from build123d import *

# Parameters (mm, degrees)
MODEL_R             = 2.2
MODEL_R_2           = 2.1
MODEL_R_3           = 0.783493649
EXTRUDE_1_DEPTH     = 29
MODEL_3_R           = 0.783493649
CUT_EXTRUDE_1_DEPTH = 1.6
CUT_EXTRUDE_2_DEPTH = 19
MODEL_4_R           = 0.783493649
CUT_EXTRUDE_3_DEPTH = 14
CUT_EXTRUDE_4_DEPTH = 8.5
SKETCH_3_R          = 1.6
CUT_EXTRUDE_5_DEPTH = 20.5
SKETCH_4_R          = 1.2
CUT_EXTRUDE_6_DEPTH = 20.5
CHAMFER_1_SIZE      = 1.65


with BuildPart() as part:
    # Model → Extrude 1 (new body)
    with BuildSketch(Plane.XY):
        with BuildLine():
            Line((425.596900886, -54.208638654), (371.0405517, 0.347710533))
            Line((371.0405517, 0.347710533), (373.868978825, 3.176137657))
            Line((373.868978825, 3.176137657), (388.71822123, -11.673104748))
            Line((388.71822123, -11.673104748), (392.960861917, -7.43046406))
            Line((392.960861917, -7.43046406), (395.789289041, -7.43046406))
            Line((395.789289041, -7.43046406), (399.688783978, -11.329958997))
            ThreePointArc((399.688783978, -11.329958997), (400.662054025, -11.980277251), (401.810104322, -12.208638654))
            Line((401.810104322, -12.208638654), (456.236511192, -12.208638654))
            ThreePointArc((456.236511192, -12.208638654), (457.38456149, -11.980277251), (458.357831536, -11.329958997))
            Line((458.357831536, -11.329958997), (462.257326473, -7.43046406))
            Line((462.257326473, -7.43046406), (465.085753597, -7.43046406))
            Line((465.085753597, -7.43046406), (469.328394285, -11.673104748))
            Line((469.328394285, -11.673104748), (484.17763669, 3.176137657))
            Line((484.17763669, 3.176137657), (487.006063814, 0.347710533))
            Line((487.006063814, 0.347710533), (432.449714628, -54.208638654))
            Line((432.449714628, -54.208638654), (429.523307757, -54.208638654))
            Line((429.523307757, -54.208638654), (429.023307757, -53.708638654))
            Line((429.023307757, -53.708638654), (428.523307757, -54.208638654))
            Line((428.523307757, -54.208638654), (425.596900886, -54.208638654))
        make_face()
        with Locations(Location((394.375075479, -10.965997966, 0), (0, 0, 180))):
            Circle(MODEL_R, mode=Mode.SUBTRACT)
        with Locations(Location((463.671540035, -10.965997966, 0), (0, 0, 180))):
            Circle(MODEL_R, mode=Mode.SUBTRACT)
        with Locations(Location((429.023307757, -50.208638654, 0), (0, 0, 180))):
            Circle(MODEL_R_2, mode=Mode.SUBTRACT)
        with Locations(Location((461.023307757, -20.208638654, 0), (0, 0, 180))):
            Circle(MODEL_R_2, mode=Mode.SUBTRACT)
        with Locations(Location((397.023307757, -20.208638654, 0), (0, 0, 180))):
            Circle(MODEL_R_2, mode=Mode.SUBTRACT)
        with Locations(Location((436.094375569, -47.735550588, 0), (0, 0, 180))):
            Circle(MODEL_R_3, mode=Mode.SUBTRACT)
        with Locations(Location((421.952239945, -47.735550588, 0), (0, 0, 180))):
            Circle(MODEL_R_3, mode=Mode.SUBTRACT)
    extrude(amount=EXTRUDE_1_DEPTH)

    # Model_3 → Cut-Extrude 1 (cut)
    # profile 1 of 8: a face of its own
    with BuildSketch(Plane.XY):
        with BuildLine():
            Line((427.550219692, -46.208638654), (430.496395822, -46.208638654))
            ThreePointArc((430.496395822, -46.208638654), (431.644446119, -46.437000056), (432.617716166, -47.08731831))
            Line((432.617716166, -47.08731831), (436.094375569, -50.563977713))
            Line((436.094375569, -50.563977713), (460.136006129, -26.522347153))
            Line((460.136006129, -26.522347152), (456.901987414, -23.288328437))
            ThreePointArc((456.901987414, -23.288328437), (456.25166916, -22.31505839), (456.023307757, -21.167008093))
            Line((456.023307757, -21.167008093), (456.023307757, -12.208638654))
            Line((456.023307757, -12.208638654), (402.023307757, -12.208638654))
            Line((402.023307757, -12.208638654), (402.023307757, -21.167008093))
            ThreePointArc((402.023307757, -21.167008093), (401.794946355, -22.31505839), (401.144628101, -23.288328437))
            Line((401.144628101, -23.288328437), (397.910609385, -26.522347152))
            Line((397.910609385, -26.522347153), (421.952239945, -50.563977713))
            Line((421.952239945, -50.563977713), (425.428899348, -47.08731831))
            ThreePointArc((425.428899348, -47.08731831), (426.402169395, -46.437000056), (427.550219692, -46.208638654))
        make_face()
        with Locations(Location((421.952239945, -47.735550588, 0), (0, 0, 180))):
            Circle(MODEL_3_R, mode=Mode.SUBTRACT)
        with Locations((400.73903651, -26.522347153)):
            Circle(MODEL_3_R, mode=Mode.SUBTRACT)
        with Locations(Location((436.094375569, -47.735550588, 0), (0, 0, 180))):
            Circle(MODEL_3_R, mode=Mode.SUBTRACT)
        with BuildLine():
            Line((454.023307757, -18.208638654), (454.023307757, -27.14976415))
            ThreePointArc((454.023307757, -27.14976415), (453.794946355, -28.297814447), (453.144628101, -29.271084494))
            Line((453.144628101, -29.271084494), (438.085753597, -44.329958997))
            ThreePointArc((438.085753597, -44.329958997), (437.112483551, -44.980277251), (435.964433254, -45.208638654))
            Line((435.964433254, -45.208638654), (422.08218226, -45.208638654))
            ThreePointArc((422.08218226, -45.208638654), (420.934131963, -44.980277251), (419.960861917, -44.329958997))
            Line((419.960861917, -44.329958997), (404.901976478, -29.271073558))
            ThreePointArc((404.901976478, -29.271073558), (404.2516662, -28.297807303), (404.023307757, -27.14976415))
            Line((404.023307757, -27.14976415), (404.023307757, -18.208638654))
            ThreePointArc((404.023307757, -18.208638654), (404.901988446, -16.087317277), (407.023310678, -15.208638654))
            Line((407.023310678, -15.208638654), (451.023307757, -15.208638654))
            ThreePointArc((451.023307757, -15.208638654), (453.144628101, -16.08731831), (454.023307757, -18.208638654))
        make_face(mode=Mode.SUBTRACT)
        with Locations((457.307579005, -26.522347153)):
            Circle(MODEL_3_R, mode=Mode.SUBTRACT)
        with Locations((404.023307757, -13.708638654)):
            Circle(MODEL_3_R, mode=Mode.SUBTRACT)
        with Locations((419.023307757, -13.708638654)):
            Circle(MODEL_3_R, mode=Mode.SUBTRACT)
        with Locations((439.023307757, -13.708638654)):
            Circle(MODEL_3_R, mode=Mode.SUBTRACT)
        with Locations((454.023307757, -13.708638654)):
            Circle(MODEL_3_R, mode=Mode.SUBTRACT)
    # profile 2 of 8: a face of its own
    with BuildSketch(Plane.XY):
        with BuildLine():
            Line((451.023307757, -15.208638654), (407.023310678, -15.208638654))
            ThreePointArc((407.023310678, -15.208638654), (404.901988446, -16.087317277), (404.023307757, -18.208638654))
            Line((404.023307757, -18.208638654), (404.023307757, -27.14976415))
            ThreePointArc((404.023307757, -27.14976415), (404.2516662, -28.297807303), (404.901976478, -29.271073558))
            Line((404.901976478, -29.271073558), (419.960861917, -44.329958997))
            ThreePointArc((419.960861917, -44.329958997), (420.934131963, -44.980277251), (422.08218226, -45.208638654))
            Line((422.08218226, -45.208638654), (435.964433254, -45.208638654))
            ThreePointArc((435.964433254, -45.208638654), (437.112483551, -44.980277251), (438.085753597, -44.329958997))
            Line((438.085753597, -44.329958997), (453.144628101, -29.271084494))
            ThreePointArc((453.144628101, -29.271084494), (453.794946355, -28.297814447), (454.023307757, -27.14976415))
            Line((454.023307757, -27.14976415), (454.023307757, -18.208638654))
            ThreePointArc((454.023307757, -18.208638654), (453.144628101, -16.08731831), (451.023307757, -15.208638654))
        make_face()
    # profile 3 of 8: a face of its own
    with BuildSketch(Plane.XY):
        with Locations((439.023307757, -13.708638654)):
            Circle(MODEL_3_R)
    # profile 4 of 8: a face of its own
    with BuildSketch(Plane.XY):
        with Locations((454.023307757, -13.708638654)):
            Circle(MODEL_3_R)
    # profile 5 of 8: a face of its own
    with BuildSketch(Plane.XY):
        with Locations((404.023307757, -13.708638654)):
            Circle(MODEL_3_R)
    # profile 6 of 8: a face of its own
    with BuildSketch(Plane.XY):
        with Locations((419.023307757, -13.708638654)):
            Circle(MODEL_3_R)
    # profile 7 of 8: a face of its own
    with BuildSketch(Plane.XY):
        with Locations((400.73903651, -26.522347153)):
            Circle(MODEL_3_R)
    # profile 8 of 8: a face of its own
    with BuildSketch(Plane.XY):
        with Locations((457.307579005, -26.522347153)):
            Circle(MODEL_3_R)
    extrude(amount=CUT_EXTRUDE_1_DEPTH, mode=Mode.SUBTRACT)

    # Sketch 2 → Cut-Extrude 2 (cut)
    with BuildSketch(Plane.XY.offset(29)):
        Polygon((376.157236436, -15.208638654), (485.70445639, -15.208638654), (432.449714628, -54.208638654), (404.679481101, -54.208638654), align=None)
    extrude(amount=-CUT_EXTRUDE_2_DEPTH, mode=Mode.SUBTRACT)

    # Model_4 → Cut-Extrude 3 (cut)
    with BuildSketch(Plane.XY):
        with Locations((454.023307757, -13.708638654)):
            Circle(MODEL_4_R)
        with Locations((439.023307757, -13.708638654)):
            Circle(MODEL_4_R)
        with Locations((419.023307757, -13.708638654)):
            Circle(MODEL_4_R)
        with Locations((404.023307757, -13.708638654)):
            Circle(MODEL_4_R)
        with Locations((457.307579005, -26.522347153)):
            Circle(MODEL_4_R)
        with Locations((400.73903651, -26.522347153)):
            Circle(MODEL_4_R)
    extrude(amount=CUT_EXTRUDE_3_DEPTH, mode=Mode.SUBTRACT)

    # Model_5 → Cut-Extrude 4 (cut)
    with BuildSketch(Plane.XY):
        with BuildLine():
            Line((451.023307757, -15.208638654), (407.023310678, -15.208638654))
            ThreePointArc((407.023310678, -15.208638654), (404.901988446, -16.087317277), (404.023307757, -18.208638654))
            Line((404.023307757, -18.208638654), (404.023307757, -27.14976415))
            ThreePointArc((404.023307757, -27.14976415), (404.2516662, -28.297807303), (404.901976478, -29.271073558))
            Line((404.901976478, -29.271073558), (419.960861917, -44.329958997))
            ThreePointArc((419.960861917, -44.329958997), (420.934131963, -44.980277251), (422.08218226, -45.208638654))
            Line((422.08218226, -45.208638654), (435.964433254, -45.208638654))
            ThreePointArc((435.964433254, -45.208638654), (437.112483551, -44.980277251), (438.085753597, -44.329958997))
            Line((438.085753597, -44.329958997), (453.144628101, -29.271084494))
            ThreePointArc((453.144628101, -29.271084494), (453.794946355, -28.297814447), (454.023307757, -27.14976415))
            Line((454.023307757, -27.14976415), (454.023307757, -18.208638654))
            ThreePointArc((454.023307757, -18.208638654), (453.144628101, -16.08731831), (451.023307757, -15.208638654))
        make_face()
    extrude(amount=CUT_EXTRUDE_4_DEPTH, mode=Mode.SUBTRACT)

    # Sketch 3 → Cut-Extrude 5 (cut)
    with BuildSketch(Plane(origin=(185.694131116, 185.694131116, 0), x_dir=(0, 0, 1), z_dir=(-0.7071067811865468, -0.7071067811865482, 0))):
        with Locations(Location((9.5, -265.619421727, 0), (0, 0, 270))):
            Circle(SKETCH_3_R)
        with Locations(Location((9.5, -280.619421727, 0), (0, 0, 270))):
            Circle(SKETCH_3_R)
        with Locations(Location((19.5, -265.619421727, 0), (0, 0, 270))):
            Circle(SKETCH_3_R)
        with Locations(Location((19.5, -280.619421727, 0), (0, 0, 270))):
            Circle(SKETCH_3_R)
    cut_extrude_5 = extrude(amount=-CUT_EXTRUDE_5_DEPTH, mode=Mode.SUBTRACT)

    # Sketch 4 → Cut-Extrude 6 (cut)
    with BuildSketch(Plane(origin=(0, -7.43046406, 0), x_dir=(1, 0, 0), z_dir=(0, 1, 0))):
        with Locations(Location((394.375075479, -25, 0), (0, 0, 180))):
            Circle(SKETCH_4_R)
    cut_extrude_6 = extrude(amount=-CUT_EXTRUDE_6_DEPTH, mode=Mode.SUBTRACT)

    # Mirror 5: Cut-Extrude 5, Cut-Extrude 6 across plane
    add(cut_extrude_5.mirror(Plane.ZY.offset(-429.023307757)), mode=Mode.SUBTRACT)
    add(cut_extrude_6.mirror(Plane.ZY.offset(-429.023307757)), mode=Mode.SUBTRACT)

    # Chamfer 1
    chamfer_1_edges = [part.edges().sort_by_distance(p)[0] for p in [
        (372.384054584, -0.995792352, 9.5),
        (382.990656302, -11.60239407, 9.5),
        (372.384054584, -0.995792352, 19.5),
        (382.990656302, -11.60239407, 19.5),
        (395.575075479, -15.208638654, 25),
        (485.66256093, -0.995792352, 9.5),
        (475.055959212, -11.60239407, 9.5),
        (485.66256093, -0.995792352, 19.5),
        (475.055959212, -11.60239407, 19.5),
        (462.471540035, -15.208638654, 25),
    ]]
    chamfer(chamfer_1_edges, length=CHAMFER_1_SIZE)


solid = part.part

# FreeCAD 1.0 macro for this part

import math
import FreeCAD as App
import Part
import Sketcher
from FreeCAD import Vector


def edges_at(feature, points):
    """Names of the edges that pass closest to the given points."""
    edges = feature.Shape.Edges
    near = lambda p: min(range(len(edges)), key=lambda i: edges[i].distToShape(Part.Vertex(*p))[0])
    return sorted({f"Edge{near(p) + 1}" for p in points})


def add_polygon(sketch, points):
    """Adds a closed chain of lines whose ends are joined by coincident constraints."""
    first, n = sketch.GeometryCount, len(points)
    for a, b in zip(points, points[1:] + points[:1]):
        sketch.addGeometry(Part.LineSegment(App.Vector(*a, 0), App.Vector(*b, 0)), False)
    for i in range(n):
        sketch.addConstraint(Sketcher.Constraint("Coincident", first + i, 2, first + (i + 1) % n, 1))

doc = App.newDocument("Part")
body = doc.addObject("PartDesign::Body", "Body")

# Sketch on XY plane
sketch1 = body.newObject("Sketcher::SketchObject", "Sketch")
sketch1.AttachmentSupport = (doc.getObject("XY_Plane"), [""])
sketch1.MapMode = "FlatFace"
sketch1.addGeometry([
    Part.LineSegment(Vector(371, 0.3, 0), Vector(425.6, -54.2, 0)),  # 0
    Part.LineSegment(Vector(425.6, -54.2, 0), Vector(428.5, -54.2, 0)),  # 1
    Part.LineSegment(Vector(428.5, -54.2, 0), Vector(429, -53.7, 0)),  # 2
    Part.LineSegment(Vector(429, -53.7, 0), Vector(429.5, -54.2, 0)),  # 3
    Part.LineSegment(Vector(429.5, -54.2, 0), Vector(432.4, -54.2, 0)),  # 4
    Part.LineSegment(Vector(432.4, -54.2, 0), Vector(487, 0.3, 0)),  # 5
    Part.LineSegment(Vector(487, 0.3, 0), Vector(484.2, 3.2, 0)),  # 6
    Part.LineSegment(Vector(484.2, 3.2, 0), Vector(469.3, -11.7, 0)),  # 7
    Part.LineSegment(Vector(469.3, -11.7, 0), Vector(465.1, -7.4, 0)),  # 8
    Part.LineSegment(Vector(465.1, -7.4, 0), Vector(462.3, -7.4, 0)),  # 9
    Part.LineSegment(Vector(462.3, -7.4, 0), Vector(458.4, -11.3, 0)),  # 10
    Part.ArcOfCircle(Part.Circle(Vector(456.2, -9.2, 0), Vector(0, 0, 1), 3), math.radians(-90), math.radians(-45)),  # 11
    Part.LineSegment(Vector(456.2, -12.2, 0), Vector(401.8, -12.2, 0)),  # 12
    Part.ArcOfCircle(Part.Circle(Vector(401.8, -9.2, 0), Vector(0, 0, 1), 3), math.radians(-135), math.radians(-90)),  # 13
    Part.LineSegment(Vector(399.7, -11.3, 0), Vector(395.8, -7.4, 0)),  # 14
    Part.LineSegment(Vector(395.8, -7.4, 0), Vector(393, -7.4, 0)),  # 15
    Part.LineSegment(Vector(393, -7.4, 0), Vector(388.7, -11.7, 0)),  # 16
    Part.LineSegment(Vector(388.7, -11.7, 0), Vector(373.9, 3.2, 0)),  # 17
    Part.LineSegment(Vector(373.9, 3.2, 0), Vector(371, 0.3, 0)),  # 18
    Part.Circle(Vector(436.1, -47.7, 0), Vector(0, 0, 1), 0.8),  # 19
    Part.Circle(Vector(429, -50.2, 0), Vector(0, 0, 1), 2.1),  # 20
    Part.Circle(Vector(422, -47.7, 0), Vector(0, 0, 1), 0.8),  # 21
    Part.Circle(Vector(461, -20.2, 0), Vector(0, 0, 1), 2.1),  # 22
    Part.Circle(Vector(463.7, -11, 0), Vector(0, 0, 1), 2.2),  # 23
    Part.Circle(Vector(397, -20.2, 0), Vector(0, 0, 1), 2.1),  # 24
    Part.Circle(Vector(394.4, -11, 0), Vector(0, 0, 1), 2.2),  # 25
], False)
sketch1.addConstraint([
    Sketcher.Constraint("Coincident", 0, 2, 1, 1),
    Sketcher.Constraint("Coincident", 1, 2, 2, 1),
    Sketcher.Constraint("Coincident", 2, 2, 3, 1),
    Sketcher.Constraint("Coincident", 3, 2, 4, 1),
    Sketcher.Constraint("Coincident", 4, 2, 5, 1),
    Sketcher.Constraint("Coincident", 5, 2, 6, 1),
    Sketcher.Constraint("Coincident", 6, 2, 7, 1),
    Sketcher.Constraint("Coincident", 7, 2, 8, 1),
    Sketcher.Constraint("Coincident", 8, 2, 9, 1),
    Sketcher.Constraint("Coincident", 9, 2, 10, 1),
    Sketcher.Constraint("Tangent", 10, 2, 11, 2),
    Sketcher.Constraint("Tangent", 11, 1, 12, 1),
    Sketcher.Constraint("Tangent", 12, 2, 13, 2),
    Sketcher.Constraint("Tangent", 13, 1, 14, 1),
    Sketcher.Constraint("Coincident", 14, 2, 15, 1),
    Sketcher.Constraint("Coincident", 15, 2, 16, 1),
    Sketcher.Constraint("Coincident", 16, 2, 17, 1),
    Sketcher.Constraint("Coincident", 17, 2, 18, 1),
    Sketcher.Constraint("Coincident", 18, 2, 0, 1),
    Sketcher.Constraint("Horizontal", 1),
    Sketcher.Constraint("Horizontal", 4),
    Sketcher.Constraint("Horizontal", 9),
    Sketcher.Constraint("Horizontal", 12),
    Sketcher.Constraint("Horizontal", 15),
    Sketcher.Constraint("Equal", 11, 13),
    Sketcher.Constraint("Equal", 19, 21),
    Sketcher.Constraint("Equal", 20, 22),
    Sketcher.Constraint("Equal", 22, 24),
    Sketcher.Constraint("Equal", 23, 25),
    Sketcher.Constraint("Perpendicular", 0, 2),
    Sketcher.Constraint("Perpendicular", 2, 3),
    Sketcher.Constraint("Perpendicular", 3, 5),
    Sketcher.Constraint("Perpendicular", 5, 6),
    Sketcher.Constraint("Perpendicular", 6, 7),
    Sketcher.Constraint("Perpendicular", 7, 8),
    Sketcher.Constraint("Perpendicular", 8, 10),
    Sketcher.Constraint("Perpendicular", 10, 14),
    Sketcher.Constraint("Perpendicular", 14, 16),
    Sketcher.Constraint("Perpendicular", 16, 17),
    Sketcher.Constraint("Perpendicular", 17, 18),
    Sketcher.Constraint("Horizontal", 19, 3, 21, 3),
    Sketcher.Constraint("Horizontal", 22, 3, 24, 3),
    Sketcher.Constraint("Horizontal", 23, 3, 25, 3),
    Sketcher.Constraint("Horizontal", 1, 2, 3, 2),
    Sketcher.Constraint("Horizontal", 10, 2, 13, 1),
    Sketcher.Constraint("Horizontal", 9, 2, 14, 2),
    Sketcher.Constraint("Horizontal", 7, 2, 16, 2),
    Sketcher.Constraint("Horizontal", 6, 2, 17, 2),
    Sketcher.Constraint("Horizontal", 5, 2, 18, 2),
    Sketcher.Constraint("Vertical", 20, 3, 2, 2),
    Sketcher.Constraint("Equal", 1, 4),
    Sketcher.Constraint("Equal", 9, 15),
    Sketcher.Constraint("Radius", 11, 3.0),
    Sketcher.Constraint("Diameter", 20, 4.2),
    Sketcher.Constraint("Diameter", 23, 4.4),
    Sketcher.Constraint("Distance", 6, 4.0),
    Sketcher.Constraint("Distance", 7, 21.0),
    Sketcher.Constraint("Distance", 8, 6.0),
    Sketcher.Constraint("DistanceY", 20, 3, 11, 3, 41.0),
    Sketcher.Constraint("DistanceY", 22, 3, 11, 3, 11.0),
    Sketcher.Constraint("DistanceX", 20, 3, 22, 3, 32.0),
    Sketcher.Constraint("DistanceX", 24, 3, 20, 3, 32.0),
    Sketcher.Constraint("DistanceY", 0, 2, 20, 3, 4.0),
    Sketcher.Constraint("DistanceX", 1, 2, 3, 2, 1.0),
    Sketcher.Constraint("Diameter", 19, 1.566987),
    Sketcher.Constraint("DistanceX", -1, 1, 0, 2, 425.596901),
    Sketcher.Constraint("DistanceX", 21, 3, 23, 3, 41.7193),
    Sketcher.Constraint("DistanceX", 25, 3, 19, 3, 41.7193),
    Sketcher.Constraint("Distance", 0, 77.154329),
    Sketcher.Constraint("DistanceX", 1, 1, 1, 2, 2.926407),
    Sketcher.Constraint("DistanceX", 9, 2, 9, 1, 2.828427),
    Sketcher.Constraint("DistanceY", 11, 3, -1, 1, 9.208639),
    Sketcher.Constraint("DistanceY", 19, 3, -1, 1, 47.735551),
    Sketcher.Constraint("DistanceX", -1, 1, 21, 3, 421.95224),
    Sketcher.Constraint("DistanceX", 13, 3, 19, 3, 34.284271),
    Sketcher.Constraint("DistanceY", 23, 3, 11, 3, 1.757359),
])
pad1 = body.newObject("PartDesign::Pad", "Pad")
pad1.Profile = sketch1
pad1.Length = 29

# Sketch on XY plane
sketch2 = body.newObject("Sketcher::SketchObject", "Sketch001")
sketch2.AttachmentSupport = (doc.getObject("XY_Plane"), [""])
sketch2.MapMode = "FlatFace"
sketch2.addGeometry([
    Part.LineSegment(Vector(427.6, -46.2, 0), Vector(430.5, -46.2, 0)),  # 0
    Part.ArcOfCircle(Part.Circle(Vector(430.5, -49.2, 0), Vector(0, 0, 1), 3), math.radians(45), math.radians(90)),  # 1
    Part.LineSegment(Vector(432.6, -47.1, 0), Vector(436.1, -50.6, 0)),  # 2
    Part.LineSegment(Vector(436.1, -50.6, 0), Vector(460.1, -26.5, 0)),  # 3
    Part.LineSegment(Vector(460.1, -26.5, 0), Vector(456.9, -23.3, 0)),  # 4
    Part.ArcOfCircle(Part.Circle(Vector(459, -21.2, 0), Vector(0, 0, 1), 3), math.radians(-180), math.radians(-135)),  # 5
    Part.LineSegment(Vector(456, -21.2, 0), Vector(456, -12.2, 0)),  # 6
    Part.LineSegment(Vector(456, -12.2, 0), Vector(402, -12.2, 0)),  # 7
    Part.LineSegment(Vector(402, -12.2, 0), Vector(402, -21.2, 0)),  # 8
    Part.ArcOfCircle(Part.Circle(Vector(399, -21.2, 0), Vector(0, 0, 1), 3), math.radians(-45), math.radians(0)),  # 9
    Part.LineSegment(Vector(401.1, -23.3, 0), Vector(397.9, -26.5, 0)),  # 10
    Part.LineSegment(Vector(397.9, -26.5, 0), Vector(422, -50.6, 0)),  # 11
    Part.LineSegment(Vector(422, -50.6, 0), Vector(425.4, -47.1, 0)),  # 12
    Part.ArcOfCircle(Part.Circle(Vector(427.6, -49.2, 0), Vector(0, 0, 1), 3), math.radians(90), math.radians(135)),  # 13
    Part.Circle(Vector(422, -47.7, 0), Vector(0, 0, 1), 0.8),  # 14
    Part.Circle(Vector(436.1, -47.7, 0), Vector(0, 0, 1), 0.8),  # 15
], False)
sketch2.addConstraint([
    Sketcher.Constraint("Tangent", 0, 2, 1, 2),
    Sketcher.Constraint("Tangent", 1, 1, 2, 1),
    Sketcher.Constraint("Coincident", 2, 2, 3, 1),
    Sketcher.Constraint("Coincident", 3, 2, 4, 1),
    Sketcher.Constraint("Tangent", 4, 2, 5, 2),
    Sketcher.Constraint("Tangent", 5, 1, 6, 1),
    Sketcher.Constraint("Coincident", 6, 2, 7, 1),
    Sketcher.Constraint("Coincident", 7, 2, 8, 1),
    Sketcher.Constraint("Tangent", 8, 2, 9, 2),
    Sketcher.Constraint("Tangent", 9, 1, 10, 1),
    Sketcher.Constraint("Coincident", 10, 2, 11, 1),
    Sketcher.Constraint("Coincident", 11, 2, 12, 1),
    Sketcher.Constraint("Tangent", 12, 2, 13, 2),
    Sketcher.Constraint("Tangent", 13, 1, 0, 1),
    Sketcher.Constraint("Horizontal", 0),
    Sketcher.Constraint("Vertical", 6),
    Sketcher.Constraint("Horizontal", 7),
    Sketcher.Constraint("Vertical", 8),
    Sketcher.Constraint("Equal", 1, 5),
    Sketcher.Constraint("Equal", 5, 9),
    Sketcher.Constraint("Equal", 9, 13),
    Sketcher.Constraint("Equal", 14, 15),
    Sketcher.Constraint("Perpendicular", 2, 3),
    Sketcher.Constraint("Perpendicular", 3, 4),
    Sketcher.Constraint("Perpendicular", 4, 10),
    Sketcher.Constraint("Perpendicular", 10, 11),
    Sketcher.Constraint("Perpendicular", 11, 12),
    Sketcher.Constraint("Horizontal", 5, 3, 9, 3),
    Sketcher.Constraint("Horizontal", 14, 3, 15, 3),
    Sketcher.Constraint("Horizontal", 4, 2, 9, 1),
    Sketcher.Constraint("Horizontal", 3, 2, 10, 2),
    Sketcher.Constraint("Horizontal", 2, 2, 11, 2),
    Sketcher.Constraint("Vertical", 15, 3, 2, 2),
    Sketcher.Constraint("Vertical", 14, 3, 11, 2),
    Sketcher.Constraint("Radius", 1, 3.0),
    Sketcher.Constraint("DistanceX", 7, 2, 7, 1, 54.0),
    Sketcher.Constraint("Distance", 3, 34.0),
    Sketcher.Constraint("DistanceY", 0, 2, 7, 2, 34.0),
    Sketcher.Constraint("Diameter", 14, 1.566987),
    Sketcher.Constraint("DistanceY", 6, 1, 6, 2, 8.958369),
    Sketcher.Constraint("DistanceX", -1, 1, 12, 2, 425.428899),
    Sketcher.Constraint("DistanceX", 5, 3, 3, 2, 1.112698),
    Sketcher.Constraint("DistanceY", 1, 3, -1, 1, 49.208639),
    Sketcher.Constraint("DistanceY", 14, 3, -1, 1, 47.735551),
])
pocket1 = body.newObject("PartDesign::Pocket", "Pocket")
pocket1.Profile = sketch2
pocket1.Length = 1.6
pocket1.Reversed = True

# Sketch on XY plane
sketch3 = body.newObject("Sketcher::SketchObject", "Sketch002")
sketch3.AttachmentSupport = (doc.getObject("XY_Plane"), [""])
sketch3.MapMode = "FlatFace"
sketch3.AttachmentOffset = App.Placement(Vector(0, 0, 29), App.Rotation())
add_polygon(sketch3, [(486, -15), (376, -15), (405, -54), (432, -54)])  # lines 0-3
sketch3.addConstraint([
    Sketcher.Constraint("Horizontal", 0),
    Sketcher.Constraint("Horizontal", 2),
    Sketcher.Constraint("DistanceY", 1, 2, 0, 2, 39.0),
    Sketcher.Constraint("DistanceX", 0, 2, 0, 1, 109.54722),
    Sketcher.Constraint("DistanceX", 2, 1, 2, 2, 27.770234),
    Sketcher.Constraint("DistanceY", 0, 2, -1, 1, 15.208639),
    Sketcher.Constraint("DistanceX", -1, 1, 1, 2, 404.679481),
    Sketcher.Constraint("DistanceX", 0, 2, 2, 2, 56.292478),
])
pocket2 = body.newObject("PartDesign::Pocket", "Pocket001")
pocket2.Profile = sketch3
pocket2.Length = 19

# Sketch on XY plane
sketch4 = body.newObject("Sketcher::SketchObject", "Sketch003")
sketch4.AttachmentSupport = (doc.getObject("XY_Plane"), [""])
sketch4.MapMode = "FlatFace"
sketch4.addGeometry([
    Part.Circle(Vector(454, -13.7, 0), Vector(0, 0, 1), 0.8),  # 0
    Part.Circle(Vector(439, -13.7, 0), Vector(0, 0, 1), 0.8),  # 1
    Part.Circle(Vector(419, -13.7, 0), Vector(0, 0, 1), 0.8),  # 2
    Part.Circle(Vector(404, -13.7, 0), Vector(0, 0, 1), 0.8),  # 3
    Part.Circle(Vector(457.3, -26.5, 0), Vector(0, 0, 1), 0.8),  # 4
    Part.Circle(Vector(400.7, -26.5, 0), Vector(0, 0, 1), 0.8),  # 5
], False)
sketch4.addConstraint([
    Sketcher.Constraint("Equal", 0, 1),
    Sketcher.Constraint("Equal", 1, 2),
    Sketcher.Constraint("Equal", 2, 3),
    Sketcher.Constraint("Equal", 3, 4),
    Sketcher.Constraint("Equal", 4, 5),
    Sketcher.Constraint("Horizontal", 0, 3, 1, 3),
    Sketcher.Constraint("Horizontal", 1, 3, 2, 3),
    Sketcher.Constraint("Horizontal", 2, 3, 3, 3),
    Sketcher.Constraint("Horizontal", 4, 3, 5, 3),
    Sketcher.Constraint("DistanceX", 1, 3, 0, 3, 15.0),
    Sketcher.Constraint("DistanceX", 2, 3, 1, 3, 20.0),
    Sketcher.Constraint("DistanceX", 3, 3, 2, 3, 15.0),
    Sketcher.Constraint("Diameter", 0, 1.566987),
    Sketcher.Constraint("DistanceY", 0, 3, -1, 1, 13.708639),
    Sketcher.Constraint("DistanceX", -1, 1, 4, 3, 457.307579),
    Sketcher.Constraint("DistanceX", 0, 3, 4, 3, 3.284271),
    Sketcher.Constraint("DistanceY", 4, 3, 0, 3, 12.813708),
    Sketcher.Constraint("DistanceX", 5, 3, 3, 3, 3.284271),
])
pocket3 = body.newObject("PartDesign::Pocket", "Pocket002")
pocket3.Profile = sketch4
pocket3.Length = 14
pocket3.Reversed = True

# Sketch on XY plane
sketch5 = body.newObject("Sketcher::SketchObject", "Sketch004")
sketch5.AttachmentSupport = (doc.getObject("XY_Plane"), [""])
sketch5.MapMode = "FlatFace"
sketch5.addGeometry([
    Part.LineSegment(Vector(451, -15.2, 0), Vector(407, -15.2, 0)),  # 0
    Part.ArcOfCircle(Part.Circle(Vector(407, -18.2, 0), Vector(0, 0, 1), 3), math.radians(90), math.radians(180)),  # 1
    Part.LineSegment(Vector(404, -18.2, 0), Vector(404, -27.1, 0)),  # 2
    Part.ArcOfCircle(Part.Circle(Vector(407, -27.1, 0), Vector(0, 0, 1), 3), math.radians(180), math.radians(225)),  # 3
    Part.LineSegment(Vector(404.9, -29.3, 0), Vector(420, -44.3, 0)),  # 4
    Part.ArcOfCircle(Part.Circle(Vector(422.1, -42.2, 0), Vector(0, 0, 1), 3), math.radians(-135), math.radians(-90)),  # 5
    Part.LineSegment(Vector(422.1, -45.2, 0), Vector(436, -45.2, 0)),  # 6
    Part.ArcOfCircle(Part.Circle(Vector(436, -42.2, 0), Vector(0, 0, 1), 3), math.radians(-90), math.radians(-45)),  # 7
    Part.LineSegment(Vector(438.1, -44.3, 0), Vector(453.1, -29.3, 0)),  # 8
    Part.ArcOfCircle(Part.Circle(Vector(451, -27.1, 0), Vector(0, 0, 1), 3), math.radians(-45), math.radians(0)),  # 9
    Part.LineSegment(Vector(454, -27.1, 0), Vector(454, -18.2, 0)),  # 10
    Part.ArcOfCircle(Part.Circle(Vector(451, -18.2, 0), Vector(0, 0, 1), 3), math.radians(0), math.radians(90)),  # 11
], False)
sketch5.addConstraint([
    Sketcher.Constraint("Tangent", 0, 2, 1, 1),
    Sketcher.Constraint("Tangent", 1, 2, 2, 1),
    Sketcher.Constraint("Tangent", 2, 2, 3, 1),
    Sketcher.Constraint("Coincident", 3, 2, 4, 1),
    Sketcher.Constraint("Tangent", 4, 2, 5, 1),
    Sketcher.Constraint("Tangent", 5, 2, 6, 1),
    Sketcher.Constraint("Tangent", 6, 2, 7, 1),
    Sketcher.Constraint("Tangent", 7, 2, 8, 1),
    Sketcher.Constraint("Tangent", 8, 2, 9, 1),
    Sketcher.Constraint("Tangent", 9, 2, 10, 1),
    Sketcher.Constraint("Tangent", 10, 2, 11, 1),
    Sketcher.Constraint("Tangent", 11, 2, 0, 1),
    Sketcher.Constraint("Horizontal", 0),
    Sketcher.Constraint("Vertical", 2),
    Sketcher.Constraint("Horizontal", 6),
    Sketcher.Constraint("Vertical", 10),
    Sketcher.Constraint("Equal", 1, 3),
    Sketcher.Constraint("Equal", 3, 5),
    Sketcher.Constraint("Equal", 5, 7),
    Sketcher.Constraint("Equal", 7, 9),
    Sketcher.Constraint("Equal", 9, 11),
    Sketcher.Constraint("Perpendicular", 4, 8),
    Sketcher.Constraint("Horizontal", 3, 3, 9, 3),
    Sketcher.Constraint("Horizontal", 4, 2, 7, 2),
    Sketcher.Constraint("Radius", 1, 3.0),
    Sketcher.Constraint("DistanceY", 5, 3, 1, 3, 24.0),
    Sketcher.Constraint("DistanceX", 3, 3, 9, 3, 44.0),
    Sketcher.Constraint("DistanceX", 6, 1, 6, 2, 13.882251),
    Sketcher.Constraint("Distance", 4, 21.29648),
    Sketcher.Constraint("DistanceY", 1, 3, -1, 1, 18.208639),
    Sketcher.Constraint("DistanceX", -1, 1, 0, 2, 407.023311),
])
pocket4 = body.newObject("PartDesign::Pocket", "Pocket003")
pocket4.Profile = sketch5
pocket4.Length = 8.5
pocket4.Reversed = True

# Sketch on an angled plane
sketch6 = body.newObject("Sketcher::SketchObject", "Sketch005")
sketch6.Placement = App.Placement(Vector(185.694131, 185.694131, 0), App.Rotation(Vector(0, 0, 1), Vector(-0.707106781, 0.707106781, 0), Vector(-0.707106781, -0.707106781, 0), "ZXY"))
sketch6.addGeometry([
    Part.Circle(Vector(9.5, -265.6, 0), Vector(0, 0, 1), 1.6),
    Part.Circle(Vector(9.5, -280.6, 0), Vector(0, 0, 1), 1.6),
    Part.Circle(Vector(19.5, -265.6, 0), Vector(0, 0, 1), 1.6),
    Part.Circle(Vector(19.5, -280.6, 0), Vector(0, 0, 1), 1.6),
], False)
sketch6.addConstraint([
    Sketcher.Constraint("Equal", 0, 1),
    Sketcher.Constraint("Equal", 1, 2),
    Sketcher.Constraint("Equal", 2, 3),
    Sketcher.Constraint("Horizontal", 0, 3, 2, 3),
    Sketcher.Constraint("Horizontal", 1, 3, 3, 3),
    Sketcher.Constraint("Vertical", 0, 3, 1, 3),
    Sketcher.Constraint("Vertical", 2, 3, 3, 3),
    Sketcher.Constraint("Diameter", 0, 3.2),
    Sketcher.Constraint("DistanceY", 1, 3, 0, 3, 15.0),
    Sketcher.Constraint("DistanceX", 0, 3, 2, 3, 10.0),
    Sketcher.Constraint("DistanceX", -1, 1, 0, 3, 9.5),
    Sketcher.Constraint("DistanceY", 0, 3, -1, 1, 265.619422),
])
pocket5 = body.newObject("PartDesign::Pocket", "Pocket004")
pocket5.Profile = sketch6
pocket5.Length = 20.5

# Sketch on XZ plane
sketch7 = body.newObject("Sketcher::SketchObject", "Sketch006")
sketch7.AttachmentSupport = (doc.getObject("XZ_Plane"), [""])
sketch7.MapMode = "FlatFace"
sketch7.AttachmentOffset = App.Placement(Vector(0, 0, 7.430464), App.Rotation())
sketch7.addGeometry(Part.Circle(Vector(394.4, 25, 0), Vector(0, 0, 1), 1.2), False)
sketch7.addConstraint([
    Sketcher.Constraint("Diameter", 0, 2.4),
    Sketcher.Constraint("DistanceY", -1, 1, 0, 3, 25.0),
    Sketcher.Constraint("DistanceX", -1, 1, 0, 3, 394.375075),
])
pocket6 = body.newObject("PartDesign::Pocket", "Pocket005")
pocket6.Profile = sketch7
pocket6.Length = 20.5
pocket6.Reversed = True
doc.recompute()

datumplane = body.newObject("PartDesign::Plane", "DatumPlane")
datumplane.AttachmentSupport = (doc.getObject("YZ_Plane"), [""])
datumplane.MapMode = "FlatFace"
datumplane.AttachmentOffset = App.Placement(Vector(0, 0, 429.023308), App.Rotation())
mirrored = body.newObject("PartDesign::Mirrored", "Mirrored")
mirrored.Originals = [pocket5, pocket6]
mirrored.MirrorPlane = (datumplane, [""])
body.Tip = mirrored
doc.recompute()

chamfer = body.newObject("PartDesign::Chamfer", "Chamfer")
chamfer.Base = (mirrored, edges_at(mirrored, [
    (372.384, -0.996, 9.5),
    (382.991, -11.602, 9.5),
    (372.384, -0.996, 19.5),
    (382.991, -11.602, 19.5),
    (395.575, -15.209, 25),
    (485.663, -0.996, 9.5),
    (475.056, -11.602, 9.5),
    (485.663, -0.996, 19.5),
    (475.056, -11.602, 19.5),
    (462.472, -15.209, 25),
]))
chamfer.Size = 1.65

doc.recompute()
